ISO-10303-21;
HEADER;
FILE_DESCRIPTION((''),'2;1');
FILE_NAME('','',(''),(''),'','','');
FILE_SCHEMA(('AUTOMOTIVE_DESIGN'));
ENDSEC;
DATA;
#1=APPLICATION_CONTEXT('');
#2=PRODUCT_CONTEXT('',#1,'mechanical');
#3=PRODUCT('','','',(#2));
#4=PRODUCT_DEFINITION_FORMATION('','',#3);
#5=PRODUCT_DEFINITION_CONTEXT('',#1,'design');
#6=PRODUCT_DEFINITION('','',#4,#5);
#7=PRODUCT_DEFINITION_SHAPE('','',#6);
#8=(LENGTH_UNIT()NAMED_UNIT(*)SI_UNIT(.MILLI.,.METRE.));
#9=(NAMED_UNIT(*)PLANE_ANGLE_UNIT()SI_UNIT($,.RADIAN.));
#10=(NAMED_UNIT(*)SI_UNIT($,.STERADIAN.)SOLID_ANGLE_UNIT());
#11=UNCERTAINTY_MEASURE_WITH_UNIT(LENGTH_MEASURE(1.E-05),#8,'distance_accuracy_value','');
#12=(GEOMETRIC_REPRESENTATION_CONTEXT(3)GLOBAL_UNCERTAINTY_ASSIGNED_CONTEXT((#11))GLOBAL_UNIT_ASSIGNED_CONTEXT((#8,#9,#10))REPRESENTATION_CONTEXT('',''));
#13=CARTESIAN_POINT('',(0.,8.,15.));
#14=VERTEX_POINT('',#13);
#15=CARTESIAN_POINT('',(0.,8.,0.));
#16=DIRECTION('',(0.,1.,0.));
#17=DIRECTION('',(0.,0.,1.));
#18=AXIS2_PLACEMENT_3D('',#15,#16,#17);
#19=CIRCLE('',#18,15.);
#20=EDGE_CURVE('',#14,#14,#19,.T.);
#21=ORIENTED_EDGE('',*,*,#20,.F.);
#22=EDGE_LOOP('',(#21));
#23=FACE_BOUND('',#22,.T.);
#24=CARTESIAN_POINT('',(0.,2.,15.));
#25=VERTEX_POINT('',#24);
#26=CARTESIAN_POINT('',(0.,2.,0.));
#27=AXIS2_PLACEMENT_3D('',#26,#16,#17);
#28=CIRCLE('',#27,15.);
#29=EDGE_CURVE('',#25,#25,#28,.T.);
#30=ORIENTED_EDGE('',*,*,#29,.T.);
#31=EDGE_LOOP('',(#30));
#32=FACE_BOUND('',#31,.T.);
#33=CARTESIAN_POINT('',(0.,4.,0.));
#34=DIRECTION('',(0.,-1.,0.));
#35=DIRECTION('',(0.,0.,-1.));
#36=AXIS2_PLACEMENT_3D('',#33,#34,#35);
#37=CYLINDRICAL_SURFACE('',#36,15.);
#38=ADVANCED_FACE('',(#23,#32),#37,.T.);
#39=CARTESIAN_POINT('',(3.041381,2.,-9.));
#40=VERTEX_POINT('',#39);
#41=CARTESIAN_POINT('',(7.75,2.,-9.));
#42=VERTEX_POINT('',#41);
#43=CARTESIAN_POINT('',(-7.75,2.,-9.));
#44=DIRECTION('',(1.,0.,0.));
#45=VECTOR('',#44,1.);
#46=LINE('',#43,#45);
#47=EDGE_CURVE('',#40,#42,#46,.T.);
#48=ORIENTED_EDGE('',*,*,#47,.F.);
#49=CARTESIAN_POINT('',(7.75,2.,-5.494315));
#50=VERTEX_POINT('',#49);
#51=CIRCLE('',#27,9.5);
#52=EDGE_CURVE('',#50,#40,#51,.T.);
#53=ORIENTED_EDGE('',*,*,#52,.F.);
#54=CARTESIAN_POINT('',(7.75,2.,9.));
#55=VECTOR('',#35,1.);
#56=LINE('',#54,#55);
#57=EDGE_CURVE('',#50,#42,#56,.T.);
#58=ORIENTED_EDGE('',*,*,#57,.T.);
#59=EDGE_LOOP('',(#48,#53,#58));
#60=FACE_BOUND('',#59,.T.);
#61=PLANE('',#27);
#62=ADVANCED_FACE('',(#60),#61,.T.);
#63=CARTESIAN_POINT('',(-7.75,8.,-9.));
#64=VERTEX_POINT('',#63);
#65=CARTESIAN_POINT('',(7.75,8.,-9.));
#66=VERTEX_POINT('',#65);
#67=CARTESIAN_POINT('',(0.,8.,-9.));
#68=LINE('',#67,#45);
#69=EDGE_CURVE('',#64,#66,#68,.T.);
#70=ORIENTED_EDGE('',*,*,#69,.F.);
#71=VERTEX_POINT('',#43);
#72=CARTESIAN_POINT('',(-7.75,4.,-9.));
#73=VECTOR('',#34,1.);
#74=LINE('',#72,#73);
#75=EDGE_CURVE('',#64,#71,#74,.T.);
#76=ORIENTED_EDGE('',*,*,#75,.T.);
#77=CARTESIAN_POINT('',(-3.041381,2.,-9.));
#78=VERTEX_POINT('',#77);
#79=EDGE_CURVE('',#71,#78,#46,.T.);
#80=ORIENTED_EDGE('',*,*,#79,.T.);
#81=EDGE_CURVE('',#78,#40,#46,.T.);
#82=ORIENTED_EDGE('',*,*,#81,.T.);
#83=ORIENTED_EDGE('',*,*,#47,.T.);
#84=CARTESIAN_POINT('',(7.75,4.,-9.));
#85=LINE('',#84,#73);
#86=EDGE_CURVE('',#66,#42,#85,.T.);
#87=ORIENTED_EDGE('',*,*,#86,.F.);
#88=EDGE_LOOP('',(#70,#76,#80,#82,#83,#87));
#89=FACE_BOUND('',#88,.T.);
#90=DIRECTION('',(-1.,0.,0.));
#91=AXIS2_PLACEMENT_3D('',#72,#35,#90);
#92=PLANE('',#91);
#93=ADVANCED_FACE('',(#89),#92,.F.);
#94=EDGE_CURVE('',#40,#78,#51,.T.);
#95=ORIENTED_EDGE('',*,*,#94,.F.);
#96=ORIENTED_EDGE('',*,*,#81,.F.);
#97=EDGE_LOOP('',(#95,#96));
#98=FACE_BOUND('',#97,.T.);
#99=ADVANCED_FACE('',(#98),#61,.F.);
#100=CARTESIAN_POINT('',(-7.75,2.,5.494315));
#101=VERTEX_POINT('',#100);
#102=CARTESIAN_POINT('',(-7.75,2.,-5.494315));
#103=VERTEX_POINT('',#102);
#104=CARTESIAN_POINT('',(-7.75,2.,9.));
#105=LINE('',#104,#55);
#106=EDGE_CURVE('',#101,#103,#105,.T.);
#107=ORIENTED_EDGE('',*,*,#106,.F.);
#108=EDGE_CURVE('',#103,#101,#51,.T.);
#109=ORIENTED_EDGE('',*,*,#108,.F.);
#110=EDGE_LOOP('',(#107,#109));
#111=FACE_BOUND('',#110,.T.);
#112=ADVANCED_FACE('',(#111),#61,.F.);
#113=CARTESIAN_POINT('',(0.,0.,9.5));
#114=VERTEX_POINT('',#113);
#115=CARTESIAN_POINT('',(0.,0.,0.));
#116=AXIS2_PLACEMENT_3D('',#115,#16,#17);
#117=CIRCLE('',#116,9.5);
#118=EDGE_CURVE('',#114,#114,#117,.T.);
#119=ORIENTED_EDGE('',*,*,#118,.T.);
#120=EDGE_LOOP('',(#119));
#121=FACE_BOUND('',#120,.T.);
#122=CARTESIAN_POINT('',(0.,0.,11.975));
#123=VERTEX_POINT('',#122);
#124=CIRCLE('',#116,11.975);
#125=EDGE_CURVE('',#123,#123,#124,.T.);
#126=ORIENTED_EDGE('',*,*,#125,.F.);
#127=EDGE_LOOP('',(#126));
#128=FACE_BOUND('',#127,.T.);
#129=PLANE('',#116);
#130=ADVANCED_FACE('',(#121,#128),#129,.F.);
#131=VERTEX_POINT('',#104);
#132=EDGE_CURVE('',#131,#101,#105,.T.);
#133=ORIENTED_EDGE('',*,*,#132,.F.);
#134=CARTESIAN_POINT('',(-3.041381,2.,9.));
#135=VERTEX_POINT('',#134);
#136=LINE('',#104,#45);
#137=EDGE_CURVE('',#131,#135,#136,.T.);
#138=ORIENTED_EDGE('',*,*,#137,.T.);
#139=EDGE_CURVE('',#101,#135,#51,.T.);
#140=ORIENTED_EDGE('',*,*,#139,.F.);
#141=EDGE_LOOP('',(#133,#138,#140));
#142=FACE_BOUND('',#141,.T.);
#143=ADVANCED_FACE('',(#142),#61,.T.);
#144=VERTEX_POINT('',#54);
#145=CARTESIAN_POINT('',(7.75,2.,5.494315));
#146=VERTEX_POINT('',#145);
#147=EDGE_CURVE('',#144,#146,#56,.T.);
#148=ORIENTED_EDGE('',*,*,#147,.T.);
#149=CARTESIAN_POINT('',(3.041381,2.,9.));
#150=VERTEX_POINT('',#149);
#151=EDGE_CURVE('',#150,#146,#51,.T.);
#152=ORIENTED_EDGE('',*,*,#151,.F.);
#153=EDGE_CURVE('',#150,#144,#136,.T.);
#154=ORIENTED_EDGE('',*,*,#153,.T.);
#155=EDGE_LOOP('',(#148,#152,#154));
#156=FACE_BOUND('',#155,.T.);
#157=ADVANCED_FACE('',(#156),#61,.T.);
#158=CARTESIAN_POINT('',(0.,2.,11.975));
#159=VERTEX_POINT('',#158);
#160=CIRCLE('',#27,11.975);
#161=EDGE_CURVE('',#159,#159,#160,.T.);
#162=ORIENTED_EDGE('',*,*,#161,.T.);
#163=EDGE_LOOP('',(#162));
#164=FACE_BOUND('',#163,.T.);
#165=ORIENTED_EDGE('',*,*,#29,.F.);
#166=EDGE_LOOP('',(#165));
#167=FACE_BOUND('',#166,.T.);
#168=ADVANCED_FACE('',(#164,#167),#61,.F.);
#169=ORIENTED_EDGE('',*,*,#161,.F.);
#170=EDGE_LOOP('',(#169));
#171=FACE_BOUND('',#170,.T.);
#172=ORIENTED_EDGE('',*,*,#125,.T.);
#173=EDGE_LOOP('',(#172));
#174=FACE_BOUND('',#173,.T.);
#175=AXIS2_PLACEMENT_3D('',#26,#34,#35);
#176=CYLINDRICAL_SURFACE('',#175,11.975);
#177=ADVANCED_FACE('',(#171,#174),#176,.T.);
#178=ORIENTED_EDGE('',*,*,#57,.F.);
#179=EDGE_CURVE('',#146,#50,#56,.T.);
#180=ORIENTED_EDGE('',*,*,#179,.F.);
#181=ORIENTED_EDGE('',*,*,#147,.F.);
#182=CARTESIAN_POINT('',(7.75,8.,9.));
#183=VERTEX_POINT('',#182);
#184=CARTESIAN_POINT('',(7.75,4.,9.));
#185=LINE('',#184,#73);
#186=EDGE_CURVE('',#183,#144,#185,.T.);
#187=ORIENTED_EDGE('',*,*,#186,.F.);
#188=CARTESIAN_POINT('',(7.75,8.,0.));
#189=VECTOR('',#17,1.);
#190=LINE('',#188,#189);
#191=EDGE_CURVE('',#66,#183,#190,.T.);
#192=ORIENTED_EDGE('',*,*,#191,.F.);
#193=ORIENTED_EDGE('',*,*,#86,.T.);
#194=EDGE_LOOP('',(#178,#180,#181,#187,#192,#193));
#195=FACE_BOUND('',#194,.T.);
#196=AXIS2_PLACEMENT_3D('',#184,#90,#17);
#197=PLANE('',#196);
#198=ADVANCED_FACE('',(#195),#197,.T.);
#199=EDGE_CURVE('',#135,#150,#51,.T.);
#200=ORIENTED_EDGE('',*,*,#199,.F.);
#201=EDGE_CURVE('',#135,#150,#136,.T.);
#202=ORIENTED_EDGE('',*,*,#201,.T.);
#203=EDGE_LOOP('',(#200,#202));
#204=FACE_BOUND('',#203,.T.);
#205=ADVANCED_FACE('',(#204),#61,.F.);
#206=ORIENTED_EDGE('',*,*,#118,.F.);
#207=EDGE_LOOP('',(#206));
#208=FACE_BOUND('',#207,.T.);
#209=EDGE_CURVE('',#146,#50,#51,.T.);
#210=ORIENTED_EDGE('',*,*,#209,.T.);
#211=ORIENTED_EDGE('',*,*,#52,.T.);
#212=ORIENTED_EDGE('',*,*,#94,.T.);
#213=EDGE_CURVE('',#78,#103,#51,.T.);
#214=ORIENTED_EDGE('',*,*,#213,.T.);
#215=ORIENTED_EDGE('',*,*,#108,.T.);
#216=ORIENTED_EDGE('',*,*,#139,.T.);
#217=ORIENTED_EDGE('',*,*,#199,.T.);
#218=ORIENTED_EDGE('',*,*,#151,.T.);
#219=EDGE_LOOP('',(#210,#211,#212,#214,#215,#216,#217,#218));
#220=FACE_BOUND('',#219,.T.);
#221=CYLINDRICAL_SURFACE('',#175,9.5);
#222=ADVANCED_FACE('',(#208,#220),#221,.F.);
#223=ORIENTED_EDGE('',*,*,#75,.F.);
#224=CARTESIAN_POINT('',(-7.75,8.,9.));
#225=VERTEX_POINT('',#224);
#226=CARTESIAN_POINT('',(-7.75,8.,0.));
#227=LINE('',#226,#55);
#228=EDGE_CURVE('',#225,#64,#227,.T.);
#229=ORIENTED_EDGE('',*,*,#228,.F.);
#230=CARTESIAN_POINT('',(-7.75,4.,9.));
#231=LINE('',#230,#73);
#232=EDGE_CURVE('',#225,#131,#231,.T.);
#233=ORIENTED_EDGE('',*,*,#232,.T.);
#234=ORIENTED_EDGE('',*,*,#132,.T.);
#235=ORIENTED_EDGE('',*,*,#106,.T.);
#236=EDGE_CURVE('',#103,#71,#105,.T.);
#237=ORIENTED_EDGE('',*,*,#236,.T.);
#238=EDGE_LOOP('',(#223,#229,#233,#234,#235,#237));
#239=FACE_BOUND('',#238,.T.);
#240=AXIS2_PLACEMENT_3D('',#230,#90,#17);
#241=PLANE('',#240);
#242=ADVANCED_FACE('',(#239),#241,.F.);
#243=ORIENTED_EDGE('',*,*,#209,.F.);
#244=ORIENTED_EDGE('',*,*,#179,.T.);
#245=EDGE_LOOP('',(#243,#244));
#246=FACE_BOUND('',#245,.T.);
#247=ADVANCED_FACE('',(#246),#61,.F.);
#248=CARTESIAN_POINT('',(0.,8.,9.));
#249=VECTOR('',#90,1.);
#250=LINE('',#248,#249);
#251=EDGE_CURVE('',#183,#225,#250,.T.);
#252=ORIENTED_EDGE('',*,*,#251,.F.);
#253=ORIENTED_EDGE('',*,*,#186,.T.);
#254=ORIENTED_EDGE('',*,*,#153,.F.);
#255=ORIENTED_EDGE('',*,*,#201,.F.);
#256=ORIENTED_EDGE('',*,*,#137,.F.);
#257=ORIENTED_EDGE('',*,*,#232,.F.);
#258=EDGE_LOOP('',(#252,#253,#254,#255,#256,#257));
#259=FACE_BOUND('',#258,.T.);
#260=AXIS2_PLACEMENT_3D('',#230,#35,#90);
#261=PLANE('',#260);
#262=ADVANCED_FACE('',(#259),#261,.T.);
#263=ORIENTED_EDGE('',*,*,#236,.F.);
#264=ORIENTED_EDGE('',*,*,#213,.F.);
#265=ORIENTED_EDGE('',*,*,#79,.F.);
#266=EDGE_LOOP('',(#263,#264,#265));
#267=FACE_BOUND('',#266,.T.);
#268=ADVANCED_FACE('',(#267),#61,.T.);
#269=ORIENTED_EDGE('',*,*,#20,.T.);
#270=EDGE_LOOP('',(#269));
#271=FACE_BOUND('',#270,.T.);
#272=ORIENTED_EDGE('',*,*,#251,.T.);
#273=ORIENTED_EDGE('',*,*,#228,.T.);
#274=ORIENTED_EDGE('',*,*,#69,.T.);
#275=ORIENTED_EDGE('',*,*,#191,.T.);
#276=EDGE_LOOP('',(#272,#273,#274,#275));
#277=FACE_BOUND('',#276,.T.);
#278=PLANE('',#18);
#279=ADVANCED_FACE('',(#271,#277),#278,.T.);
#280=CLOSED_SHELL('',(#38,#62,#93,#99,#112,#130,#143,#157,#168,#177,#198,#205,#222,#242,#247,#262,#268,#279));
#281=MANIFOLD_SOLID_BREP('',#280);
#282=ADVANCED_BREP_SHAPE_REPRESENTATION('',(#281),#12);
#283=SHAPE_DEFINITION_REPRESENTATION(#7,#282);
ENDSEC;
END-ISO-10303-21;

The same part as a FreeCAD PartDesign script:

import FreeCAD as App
import Part
import Sketcher

V = App.Vector
Q = App.Units.Quantity


def add_polygon(sketch, points):
    """Adds a closed chain of lines whose ends are joined by coincident constraints."""
    first, n = sketch.GeometryCount, len(points)
    for a, b in zip(points, points[1:] + points[:1]):
        sketch.addGeometry(Part.LineSegment(App.Vector(*a, 0), App.Vector(*b, 0)), False)
    for i in range(n):
        sketch.addConstraint(Sketcher.Constraint("Coincident", first + i, 2, first + (i + 1) % n, 1))

doc = App.newDocument("Part")
params = doc.addObject("Spreadsheet::Sheet", "Params")
for row, (alias, value) in enumerate([
    ("sketch1_diameter", "19 mm"),
    ("sketch1_diameter2", "23.95 mm"),
    ("pad1_length", "2 mm"),
    ("sketch2_diameter", "30 mm"),
    ("sketch2_height", "18 mm"),
    ("sketch2_width", "15.5 mm"),
    ("pad2_length", "2 mm"),
    ("sketch3_diameter", "30 mm"),
    ("sketch3_height", "18 mm"),
    ("sketch3_width", "15.5 mm"),
    ("pad3_length", "4 mm"),
], start=1):
    params.set(f"A{row}", alias)
    params.set(f"B{row}", "=" + value)
    params.setAlias(f"B{row}", alias)

body = doc.addObject("PartDesign::Body", "Body")

sketch1 = body.newObject("Sketcher::SketchObject", "Sketch")
sketch1.AttachmentSupport = (doc.getObject("XZ_Plane"), [""])
sketch1.MapMode = "FlatFace"
sketch1.addGeometry([
    Part.Circle(V(0, 0, 0), V(0, 0, 1), 12),
    Part.Circle(V(0, 0, 0), V(0, 0, 1), 10),
], False)
sketch1.addConstraint([
    Sketcher.Constraint("Coincident", 0, 3, -1, 1),
    Sketcher.Constraint("Coincident", 1, 3, -1, 1),
    Sketcher.Constraint("Diameter", 1, Q("19 mm")),
    Sketcher.Constraint("Diameter", 0, Q("23.95 mm")),
])
sketch1.setExpression("Constraints[2]", "Params.sketch1_diameter")
sketch1.setExpression("Constraints[3]", "Params.sketch1_diameter2")
pad1 = body.newObject("PartDesign::Pad", "Pad")
pad1.Profile = sketch1
pad1.setExpression("Length", "Params.pad1_length")
pad1.Reversed = True

sketch2 = body.newObject("Sketcher::SketchObject", "Sketch001")
sketch2.AttachmentSupport = (doc.getObject("XZ_Plane"), [""])
sketch2.MapMode = "FlatFace"
sketch2.AttachmentOffset = App.Placement(V(0, 0, -2), App.Rotation())
sketch2.addGeometry(Part.Circle(V(0, 0, 0), V(0, 0, 1), 15), False)
add_polygon(sketch2, [(8, 9), (-8, 9), (-8, -9), (8, -9)])
sketch2.addConstraint([
    Sketcher.Constraint("Horizontal", 1),
    Sketcher.Constraint("Vertical", 2),
    Sketcher.Constraint("Horizontal", 3),
    Sketcher.Constraint("Vertical", 4),
    Sketcher.Constraint("Coincident", 0, 3, -1, 1),
    Sketcher.Constraint("Symmetric", 1, 2, 3, 2, -1, 1),
    Sketcher.Constraint("Diameter", 0, Q("30 mm")),
    Sketcher.Constraint("DistanceY", 2, 2, 2, 1, Q("18 mm")),
    Sketcher.Constraint("DistanceX", 1, 2, 1, 1, Q("15.5 mm")),
])
sketch2.setExpression("Constraints[10]", "Params.sketch2_diameter")
sketch2.setExpression("Constraints[11]", "Params.sketch2_height")
sketch2.setExpression("Constraints[12]", "Params.sketch2_width")
pad2 = body.newObject("PartDesign::Pad", "Pad001")
pad2.Profile = sketch2
pad2.setExpression("Length", "Params.pad2_length")
pad2.Reversed = True

sketch3 = body.newObject("Sketcher::SketchObject", "Sketch002")
sketch3.AttachmentSupport = (doc.getObject("XZ_Plane"), [""])
sketch3.MapMode = "FlatFace"
sketch3.AttachmentOffset = App.Placement(V(0, 0, -4), App.Rotation())
sketch3.addGeometry(Part.Circle(V(0, 0, 0), V(0, 0, 1), 15), False)
add_polygon(sketch3, [(8, 9), (-8, 9), (-8, -9), (8, -9)])
sketch3.addConstraint([
    Sketcher.Constraint("Horizontal", 1),
    Sketcher.Constraint("Vertical", 2),
    Sketcher.Constraint("Horizontal", 3),
    Sketcher.Constraint("Vertical", 4),
    Sketcher.Constraint("Coincident", 0, 3, -1, 1),
    Sketcher.Constraint("Symmetric", 1, 2, 3, 2, -1, 1),
    Sketcher.Constraint("Diameter", 0, Q("30 mm")),
    Sketcher.Constraint("DistanceY", 2, 2, 2, 1, Q("18 mm")),
    Sketcher.Constraint("DistanceX", 1, 2, 1, 1, Q("15.5 mm")),
])
sketch3.setExpression("Constraints[10]", "Params.sketch3_diameter")
sketch3.setExpression("Constraints[11]", "Params.sketch3_height")
sketch3.setExpression("Constraints[12]", "Params.sketch3_width")
pad3 = body.newObject("PartDesign::Pad", "Pad002")
pad3.Profile = sketch3
pad3.setExpression("Length", "Params.pad3_length")
pad3.Reversed = True

doc.recompute()
